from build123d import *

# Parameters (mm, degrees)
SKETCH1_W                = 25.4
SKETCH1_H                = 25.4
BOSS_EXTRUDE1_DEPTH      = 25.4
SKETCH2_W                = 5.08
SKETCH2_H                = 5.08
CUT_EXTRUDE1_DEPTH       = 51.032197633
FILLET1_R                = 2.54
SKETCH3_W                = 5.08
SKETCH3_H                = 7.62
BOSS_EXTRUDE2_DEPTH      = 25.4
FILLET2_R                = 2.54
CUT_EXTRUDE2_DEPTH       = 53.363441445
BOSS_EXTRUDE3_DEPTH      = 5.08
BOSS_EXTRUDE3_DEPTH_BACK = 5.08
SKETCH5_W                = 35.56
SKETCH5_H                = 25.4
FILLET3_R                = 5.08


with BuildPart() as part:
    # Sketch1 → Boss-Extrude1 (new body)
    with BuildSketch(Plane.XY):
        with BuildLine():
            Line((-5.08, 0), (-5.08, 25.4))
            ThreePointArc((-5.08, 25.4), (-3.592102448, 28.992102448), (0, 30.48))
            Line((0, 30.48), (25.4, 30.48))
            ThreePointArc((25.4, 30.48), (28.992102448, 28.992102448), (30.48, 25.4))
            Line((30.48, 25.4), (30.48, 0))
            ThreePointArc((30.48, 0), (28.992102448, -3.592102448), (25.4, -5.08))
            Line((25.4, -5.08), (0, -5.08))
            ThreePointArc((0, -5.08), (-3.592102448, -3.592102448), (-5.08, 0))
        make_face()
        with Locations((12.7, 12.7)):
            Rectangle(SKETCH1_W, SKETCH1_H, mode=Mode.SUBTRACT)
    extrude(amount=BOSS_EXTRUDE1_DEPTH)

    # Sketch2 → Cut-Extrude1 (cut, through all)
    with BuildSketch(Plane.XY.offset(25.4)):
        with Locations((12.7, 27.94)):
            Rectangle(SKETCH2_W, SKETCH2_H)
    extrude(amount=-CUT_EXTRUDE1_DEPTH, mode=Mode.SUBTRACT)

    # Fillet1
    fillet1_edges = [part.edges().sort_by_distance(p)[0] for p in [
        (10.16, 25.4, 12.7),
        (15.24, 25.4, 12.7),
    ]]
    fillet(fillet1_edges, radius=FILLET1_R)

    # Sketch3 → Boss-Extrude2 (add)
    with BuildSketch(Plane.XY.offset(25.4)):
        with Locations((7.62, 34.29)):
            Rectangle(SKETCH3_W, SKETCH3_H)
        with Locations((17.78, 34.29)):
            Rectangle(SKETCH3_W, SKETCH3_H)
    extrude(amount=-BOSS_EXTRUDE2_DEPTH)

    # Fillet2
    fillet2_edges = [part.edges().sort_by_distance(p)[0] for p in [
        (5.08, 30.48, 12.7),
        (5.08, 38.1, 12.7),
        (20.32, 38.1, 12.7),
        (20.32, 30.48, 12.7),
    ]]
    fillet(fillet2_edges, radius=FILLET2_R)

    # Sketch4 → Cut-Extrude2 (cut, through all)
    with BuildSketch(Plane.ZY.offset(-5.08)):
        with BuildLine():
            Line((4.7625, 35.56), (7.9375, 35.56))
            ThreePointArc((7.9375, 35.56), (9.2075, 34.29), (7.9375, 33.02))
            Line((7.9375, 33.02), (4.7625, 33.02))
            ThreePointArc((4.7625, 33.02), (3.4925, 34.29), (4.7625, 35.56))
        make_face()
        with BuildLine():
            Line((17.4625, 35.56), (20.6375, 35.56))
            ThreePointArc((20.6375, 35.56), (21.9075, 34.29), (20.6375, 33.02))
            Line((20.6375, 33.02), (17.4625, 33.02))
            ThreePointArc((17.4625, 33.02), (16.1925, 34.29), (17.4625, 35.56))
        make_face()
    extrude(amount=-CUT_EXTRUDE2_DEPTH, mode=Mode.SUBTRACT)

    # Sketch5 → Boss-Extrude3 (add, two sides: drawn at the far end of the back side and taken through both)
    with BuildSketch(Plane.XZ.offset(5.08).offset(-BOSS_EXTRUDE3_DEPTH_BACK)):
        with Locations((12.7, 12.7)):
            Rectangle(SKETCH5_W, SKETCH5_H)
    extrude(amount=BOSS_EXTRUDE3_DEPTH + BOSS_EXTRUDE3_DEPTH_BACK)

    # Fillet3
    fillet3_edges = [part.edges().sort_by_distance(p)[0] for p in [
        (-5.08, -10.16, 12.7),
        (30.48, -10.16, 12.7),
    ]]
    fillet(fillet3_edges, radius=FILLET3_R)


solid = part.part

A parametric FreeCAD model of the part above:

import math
import FreeCAD as App
import Part
import Sketcher

V = App.Vector
Q = App.Units.Quantity


def edges_at(feature, points):
    """Names of the edges that pass closest to the given points."""
    edges = feature.Shape.Edges
    near = lambda p: min(range(len(edges)), key=lambda i: edges[i].distToShape(Part.Vertex(*p))[0])
    return sorted({f"Edge{near(p) + 1}" for p in points})


def add_polygon(sketch, points):
    """Adds a closed chain of lines whose ends are joined by coincident constraints."""
    first, n = sketch.GeometryCount, len(points)
    for a, b in zip(points, points[1:] + points[:1]):
        sketch.addGeometry(Part.LineSegment(App.Vector(*a, 0), App.Vector(*b, 0)), False)
    for i in range(n):
        sketch.addConstraint(Sketcher.Constraint("Coincident", first + i, 2, first + (i + 1) % n, 1))

doc = App.newDocument("Part")
body = doc.addObject("PartDesign::Body", "Body")

# Sketch on XY plane
sketch1 = body.newObject("Sketcher::SketchObject", "Sketch")
sketch1.AttachmentSupport = (doc.getObject("XY_Plane"), [""])
sketch1.MapMode = "FlatFace"
sketch1.addGeometry(Part.LineSegment(V(-5, 25, 0), V(-5, 0, 0)), False)  # 0
sketch1.addGeometry(Part.ArcOfCircle(Part.Circle(V(0, 0, 0), V(0, 0, 1), 5), math.radians(-180), math.radians(-90)), False)  # 1
sketch1.addGeometry(Part.LineSegment(V(0, -5, 0), V(25, -5, 0)), False)  # 2
sketch1.addGeometry(Part.ArcOfCircle(Part.Circle(V(25, 0, 0), V(0, 0, 1), 5), math.radians(-90), math.radians(0)), False)  # 3
sketch1.addGeometry(Part.LineSegment(V(30, 0, 0), V(30, 25, 0)), False)  # 4
sketch1.addGeometry(Part.ArcOfCircle(Part.Circle(V(25, 25, 0), V(0, 0, 1), 5), math.radians(0), math.radians(90)), False)  # 5
sketch1.addGeometry(Part.LineSegment(V(25, 30, 0), V(0, 30, 0)), False)  # 6
sketch1.addGeometry(Part.ArcOfCircle(Part.Circle(V(0, 25, 0), V(0, 0, 1), 5), math.radians(90), math.radians(180)), False)  # 7
add_polygon(sketch1, [(0, 0), (0, 25), (25, 25), (25, 0)])  # lines 8-11
sketch1.addConstraint(Sketcher.Constraint("Tangent", 0, 2, 1, 1))
sketch1.addConstraint(Sketcher.Constraint("Tangent", 1, 2, 2, 1))
sketch1.addConstraint(Sketcher.Constraint("Tangent", 2, 2, 3, 1))
sketch1.addConstraint(Sketcher.Constraint("Tangent", 3, 2, 4, 1))
sketch1.addConstraint(Sketcher.Constraint("Tangent", 4, 2, 5, 1))
sketch1.addConstraint(Sketcher.Constraint("Tangent", 5, 2, 6, 1))
sketch1.addConstraint(Sketcher.Constraint("Tangent", 6, 2, 7, 1))
sketch1.addConstraint(Sketcher.Constraint("Tangent", 7, 2, 0, 1))
sketch1.addConstraint(Sketcher.Constraint("Vertical", 0))
sketch1.addConstraint(Sketcher.Constraint("Horizontal", 2))
sketch1.addConstraint(Sketcher.Constraint("Vertical", 4))
sketch1.addConstraint(Sketcher.Constraint("Horizontal", 6))
sketch1.addConstraint(Sketcher.Constraint("Vertical", 8))
sketch1.addConstraint(Sketcher.Constraint("Horizontal", 9))
sketch1.addConstraint(Sketcher.Constraint("Vertical", 10))
sketch1.addConstraint(Sketcher.Constraint("Horizontal", 11))
sketch1.addConstraint(Sketcher.Constraint("Coincident", 1, 3, -1, 1))
sketch1.addConstraint(Sketcher.Constraint("Coincident", 11, 2, -1, 1))
sketch1.addConstraint(Sketcher.Constraint("Coincident", 8, 2, 7, 3))
sketch1.addConstraint(Sketcher.Constraint("Coincident", 9, 2, 5, 3))
sketch1.addConstraint(Sketcher.Constraint("Equal", 1, 3))
sketch1.addConstraint(Sketcher.Constraint("Equal", 11, 0))
sketch1.addConstraint(Sketcher.Constraint("Radius", 1, Q("0.2 in")))
sketch1.addConstraint(Sketcher.Constraint("DistanceX", 2, 1, 2, 2, Q("1 in")))
pad1 = body.newObject("PartDesign::Pad", "Pad")
pad1.Profile = sketch1
pad1.Length = Q("1 in")

# Sketch on XY plane
sketch2 = body.newObject("Sketcher::SketchObject", "Sketch001")
sketch2.AttachmentSupport = (doc.getObject("XY_Plane"), [""])
sketch2.MapMode = "FlatFace"
sketch2.AttachmentOffset = App.Placement(V(0, 0, 1 * 25.4), App.Rotation())
add_polygon(sketch2, [(10, 30), (10, 25), (15, 25), (15, 30)])  # lines 0-3
sketch2.addConstraint(Sketcher.Constraint("Vertical", 0))
sketch2.addConstraint(Sketcher.Constraint("Horizontal", 1))
sketch2.addConstraint(Sketcher.Constraint("Vertical", 2))
sketch2.addConstraint(Sketcher.Constraint("Horizontal", 3))
sketch2.addConstraint(Sketcher.Constraint("Equal", 3, 0))
sketch2.addConstraint(Sketcher.Constraint("DistanceX", 1, 1, 1, 2, Q("0.2 in")))
sketch2.addConstraint(Sketcher.Constraint("DistanceY", -1, 1, 0, 2, Q("1 in")))
sketch2.addConstraint(Sketcher.Constraint("DistanceX", -1, 1, 0, 2, Q("0.4 in")))
pocket1 = body.newObject("PartDesign::Pocket", "Pocket")
pocket1.Profile = sketch2
pocket1.Type = "ThroughAll"
doc.recompute()

fillet = body.newObject("PartDesign::Fillet", "Fillet")
fillet.Base = (pocket1, edges_at(pocket1, [(10.16, 25.4, 12.7), (15.24, 25.4, 12.7)]))
fillet.Radius = Q("0.1 in")

# Sketch on XY plane
sketch3 = body.newObject("Sketcher::SketchObject", "Sketch002")
sketch3.AttachmentSupport = (doc.getObject("XY_Plane"), [""])
sketch3.MapMode = "FlatFace"
sketch3.AttachmentOffset = App.Placement(V(0, 0, 1 * 25.4), App.Rotation())
add_polygon(sketch3, [(5, 38), (5, 30), (10, 30), (10, 38)])  # lines 0-3
add_polygon(sketch3, [(15, 38), (15, 30), (20, 30), (20, 38)])  # lines 4-7
sketch3.addConstraint(Sketcher.Constraint("Vertical", 0))
sketch3.addConstraint(Sketcher.Constraint("Horizontal", 1))
sketch3.addConstraint(Sketcher.Constraint("Vertical", 2))
sketch3.addConstraint(Sketcher.Constraint("Horizontal", 3))
sketch3.addConstraint(Sketcher.Constraint("Vertical", 4))
sketch3.addConstraint(Sketcher.Constraint("Horizontal", 5))
sketch3.addConstraint(Sketcher.Constraint("Vertical", 6))
sketch3.addConstraint(Sketcher.Constraint("Horizontal", 7))
sketch3.addConstraint(Sketcher.Constraint("Horizontal", 1, 2, 4, 2))
sketch3.addConstraint(Sketcher.Constraint("Horizontal", 3, 2, 6, 2))
sketch3.addConstraint(Sketcher.Constraint("Equal", 3, 5))
sketch3.addConstraint(Sketcher.Constraint("DistanceX", 1, 1, 1, 2, Q("0.2 in")))
sketch3.addConstraint(Sketcher.Constraint("DistanceY", 0, 2, 0, 1, Q("0.3 in")))
sketch3.addConstraint(Sketcher.Constraint("DistanceX", -1, 1, 0, 2, Q("0.2 in")))
sketch3.addConstraint(Sketcher.Constraint("DistanceY", -1, 1, 0, 2, Q("1.2 in")))
sketch3.addConstraint(Sketcher.Constraint("DistanceX", -1, 1, 4, 2, Q("0.6 in")))
pad2 = body.newObject("PartDesign::Pad", "Pad001")
pad2.Profile = sketch3
pad2.Length = Q("1 in")
pad2.Reversed = True
doc.recompute()

fillet2 = body.newObject("PartDesign::Fillet", "Fillet001")
fillet2.Base = (pad2, edges_at(pad2, [
    (5.08, 30.48, 12.7),
    (5.08, 38.1, 12.7),
    (20.32, 38.1, 12.7),
    (20.32, 30.48, 12.7),
]))
fillet2.Radius = Q("0.1 in")

# Sketch on YZ plane
sketch4 = body.newObject("Sketcher::SketchObject", "Sketch003")
sketch4.AttachmentSupport = (doc.getObject("YZ_Plane"), [""])
sketch4.MapMode = "FlatFace"
sketch4.AttachmentOffset = App.Placement(V(0, 0, 0.2 * 25.4), App.Rotation())
sketch4.addGeometry(Part.LineSegment(V(35.6, 7.9, 0), V(35.6, 4.8, 0)), False)
sketch4.addGeometry(Part.ArcOfCircle(Part.Circle(V(34.3, 4.8, 0), V(0, 0, 1), 1.3), math.radians(180), math.radians(360)), False)
sketch4.addGeometry(Part.LineSegment(V(33, 4.8, 0), V(33, 7.9, 0)), False)
sketch4.addGeometry(Part.ArcOfCircle(Part.Circle(V(34.3, 7.9, 0), V(0, 0, 1), 1.3), math.radians(0), math.radians(180)), False)
sketch4.addGeometry(Part.LineSegment(V(35.6, 20.6, 0), V(35.6, 17.5, 0)), False)
sketch4.addGeometry(Part.ArcOfCircle(Part.Circle(V(34.3, 17.5, 0), V(0, 0, 1), 1.3), math.radians(180), math.radians(360)), False)
sketch4.addGeometry(Part.LineSegment(V(33, 17.5, 0), V(33, 20.6, 0)), False)
sketch4.addGeometry(Part.ArcOfCircle(Part.Circle(V(34.3, 20.6, 0), V(0, 0, 1), 1.3), math.radians(0), math.radians(180)), False)
sketch4.addConstraint(Sketcher.Constraint("Tangent", 0, 2, 1, 2))
sketch4.addConstraint(Sketcher.Constraint("Tangent", 1, 1, 2, 1))
sketch4.addConstraint(Sketcher.Constraint("Tangent", 2, 2, 3, 2))
sketch4.addConstraint(Sketcher.Constraint("Tangent", 3, 1, 0, 1))
sketch4.addConstraint(Sketcher.Constraint("Tangent", 4, 2, 5, 2))
sketch4.addConstraint(Sketcher.Constraint("Tangent", 5, 1, 6, 1))
sketch4.addConstraint(Sketcher.Constraint("Tangent", 6, 2, 7, 2))
sketch4.addConstraint(Sketcher.Constraint("Tangent", 7, 1, 4, 1))
sketch4.addConstraint(Sketcher.Constraint("Vertical", 0))
sketch4.addConstraint(Sketcher.Constraint("Vertical", 2))
sketch4.addConstraint(Sketcher.Constraint("Vertical", 4))
sketch4.addConstraint(Sketcher.Constraint("Vertical", 6))
sketch4.addConstraint(Sketcher.Constraint("Equal", 3, 5))
sketch4.addConstraint(Sketcher.Constraint("Vertical", 3, 3, 5, 3))
sketch4.addConstraint(Sketcher.Constraint("Equal", 2, 4))
sketch4.addConstraint(Sketcher.Constraint("Radius", 1, Q("0.05 in")))
sketch4.addConstraint(Sketcher.Constraint("DistanceX", -1, 1, 0, 2, Q("1.4 in")))
sketch4.addConstraint(Sketcher.Constraint("DistanceY", 1, 3, 5, 3, Q("0.5 in")))
sketch4.addConstraint(Sketcher.Constraint("DistanceY", 0, 2, 0, 1, Q("0.125 in")))
sketch4.addConstraint(Sketcher.Constraint("DistanceY", -1, 1, 1, 3, Q("0.1875 in")))
pocket2 = body.newObject("PartDesign::Pocket", "Pocket001")
pocket2.Profile = sketch4
pocket2.Type = "ThroughAll"
pocket2.Reversed = True

# Sketch on XZ plane
sketch5 = body.newObject("Sketcher::SketchObject", "Sketch004")
sketch5.AttachmentSupport = (doc.getObject("XZ_Plane"), [""])
sketch5.MapMode = "FlatFace"
sketch5.AttachmentOffset = App.Placement(V(0, 0, 0.2 * 25.4), App.Rotation())
add_polygon(sketch5, [(-5, 25), (-5, 0), (30, 0), (30, 25)])  # lines 0-3
sketch5.addConstraint(Sketcher.Constraint("Vertical", 0))
sketch5.addConstraint(Sketcher.Constraint("Horizontal", 1))
sketch5.addConstraint(Sketcher.Constraint("Vertical", 2))
sketch5.addConstraint(Sketcher.Constraint("Horizontal", 3))
sketch5.addConstraint(Sketcher.Constraint("PointOnObject", 0, 2, -1))
sketch5.addConstraint(Sketcher.Constraint("DistanceY", 0, 2, 0, 1, Q("1 in")))
sketch5.addConstraint(Sketcher.Constraint("DistanceX", 1, 1, 1, 2, Q("1.4 in")))
sketch5.addConstraint(Sketcher.Constraint("DistanceX", 0, 2, -1, 1, Q("0.2 in")))
pad3 = body.newObject("PartDesign::Pad", "Pad002")
pad3.Profile = sketch5
pad3.Type = "TwoLengths"
pad3.Length = Q("0.2 in")
pad3.Length2 = Q("0.2 in")
doc.recompute()

fillet3 = body.newObject("PartDesign::Fillet", "Fillet002")
fillet3.Base = (pad3, edges_at(pad3, [(-5.08, -10.16, 12.7), (30.48, -10.16, 12.7)]))
fillet3.Radius = Q("0.2 in")

doc.recompute()
